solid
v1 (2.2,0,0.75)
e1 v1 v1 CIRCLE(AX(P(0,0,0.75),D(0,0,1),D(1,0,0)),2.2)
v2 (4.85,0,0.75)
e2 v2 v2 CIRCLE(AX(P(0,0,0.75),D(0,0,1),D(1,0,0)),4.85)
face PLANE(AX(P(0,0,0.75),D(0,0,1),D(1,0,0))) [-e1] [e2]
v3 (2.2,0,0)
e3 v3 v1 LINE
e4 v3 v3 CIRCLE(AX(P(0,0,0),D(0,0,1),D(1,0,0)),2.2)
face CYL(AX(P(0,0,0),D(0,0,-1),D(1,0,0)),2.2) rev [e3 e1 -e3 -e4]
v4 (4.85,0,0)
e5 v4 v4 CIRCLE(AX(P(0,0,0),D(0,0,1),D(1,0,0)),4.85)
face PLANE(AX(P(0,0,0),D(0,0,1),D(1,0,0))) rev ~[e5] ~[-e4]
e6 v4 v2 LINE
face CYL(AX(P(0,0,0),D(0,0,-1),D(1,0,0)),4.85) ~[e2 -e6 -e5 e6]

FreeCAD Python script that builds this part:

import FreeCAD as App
import Part
import Sketcher

doc = App.newDocument("Part")
params = doc.addObject("Spreadsheet::Sheet", "Params")
for row, (alias, value) in enumerate([
    ("sketch1_diameter", "9.7 mm"),
    ("sketch1_diameter2", "4.4 mm"),
    ("pad1_length", "0.75 mm"),
], start=1):
    params.set(f"A{row}", alias)
    params.set(f"B{row}", "=" + value)
    params.setAlias(f"B{row}", alias)

body = doc.addObject("PartDesign::Body", "Body")

sketch1 = body.newObject("Sketcher::SketchObject", "Sketch")
sketch1.AttachmentSupport = (doc.getObject("XY_Plane"), [""])
sketch1.MapMode = "FlatFace"
sketch1.addGeometry(Part.Circle(App.Vector(0, 0, 0), App.Vector(0, 0, 1), 4.8), False)
sketch1.addGeometry(Part.Circle(App.Vector(0, 0, 0), App.Vector(0, 0, 1), 2.2), False)
sketch1.addConstraint(Sketcher.Constraint("Coincident", 0, 3, -1, 1))
sketch1.addConstraint(Sketcher.Constraint("Coincident", 1, 3, -1, 1))
sketch1.addConstraint(Sketcher.Constraint("Diameter", 0, 9.7))
sketch1.addConstraint(Sketcher.Constraint("Diameter", 1, 4.4))
sketch1.setExpression("Constraints[2]", "Params.sketch1_diameter")
sketch1.setExpression("Constraints[3]", "Params.sketch1_diameter2")
pad1 = body.newObject("PartDesign::Pad", "Pad")
pad1.Profile = sketch1
pad1.setExpression("Length", "Params.pad1_length")

doc.recompute()
